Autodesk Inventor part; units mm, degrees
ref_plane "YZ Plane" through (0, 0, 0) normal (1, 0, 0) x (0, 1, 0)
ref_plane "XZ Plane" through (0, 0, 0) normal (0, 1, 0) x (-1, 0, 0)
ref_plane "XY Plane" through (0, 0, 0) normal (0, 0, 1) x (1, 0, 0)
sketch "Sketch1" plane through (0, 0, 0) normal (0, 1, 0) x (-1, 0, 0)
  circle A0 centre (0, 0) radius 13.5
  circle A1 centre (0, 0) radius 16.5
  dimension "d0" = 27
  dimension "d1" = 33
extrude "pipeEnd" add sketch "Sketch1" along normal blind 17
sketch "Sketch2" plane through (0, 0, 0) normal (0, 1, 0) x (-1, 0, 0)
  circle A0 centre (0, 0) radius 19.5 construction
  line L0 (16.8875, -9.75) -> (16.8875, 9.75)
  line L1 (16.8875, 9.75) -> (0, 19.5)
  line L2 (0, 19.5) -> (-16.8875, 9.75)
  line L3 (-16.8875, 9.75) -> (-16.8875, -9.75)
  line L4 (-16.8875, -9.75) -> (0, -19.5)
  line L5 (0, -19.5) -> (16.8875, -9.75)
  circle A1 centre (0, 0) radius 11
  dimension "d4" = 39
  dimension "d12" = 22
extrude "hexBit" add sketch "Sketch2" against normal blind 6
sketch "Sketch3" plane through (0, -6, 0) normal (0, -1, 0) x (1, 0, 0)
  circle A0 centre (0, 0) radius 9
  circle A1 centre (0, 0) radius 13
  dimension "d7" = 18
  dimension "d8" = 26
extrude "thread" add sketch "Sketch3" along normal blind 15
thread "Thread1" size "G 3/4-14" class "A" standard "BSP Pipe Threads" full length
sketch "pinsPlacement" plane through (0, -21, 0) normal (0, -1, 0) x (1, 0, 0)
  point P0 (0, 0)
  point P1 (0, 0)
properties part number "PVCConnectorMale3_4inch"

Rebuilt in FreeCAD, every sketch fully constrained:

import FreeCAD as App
import Part
import Sketcher

V = App.Vector
Q = App.Units.Quantity


def add_polygon(sketch, points):
    """Adds a closed chain of lines whose ends are joined by coincident constraints."""
    first, n = sketch.GeometryCount, len(points)
    for a, b in zip(points, points[1:] + points[:1]):
        sketch.addGeometry(Part.LineSegment(App.Vector(*a, 0), App.Vector(*b, 0)), False)
    for i in range(n):
        sketch.addConstraint(Sketcher.Constraint("Coincident", first + i, 2, first + (i + 1) % n, 1))

doc = App.newDocument("Part")
body = doc.addObject("PartDesign::Body", "Body")

# Sketch on XZ plane
sketch1 = body.newObject("Sketcher::SketchObject", "Sketch")
sketch1.AttachmentSupport = (doc.getObject("XZ_Plane"), [""])
sketch1.MapMode = "FlatFace"
sketch1.addGeometry(Part.Circle(V(0, 0, 0), V(0, 0, 1), 16), False)
sketch1.addGeometry(Part.Circle(V(0, 0, 0), V(0, 0, 1), 14), False)
sketch1.addConstraint(Sketcher.Constraint("Coincident", 0, 3, -1, 1))
sketch1.addConstraint(Sketcher.Constraint("Coincident", 1, 3, -1, 1))
sketch1.addConstraint(Sketcher.Constraint("Diameter", 0, 33.0))
sketch1.addConstraint(Sketcher.Constraint("Diameter", 1, 27.0))
pad1 = body.newObject("PartDesign::Pad", "Pad")
pad1.Profile = sketch1
pad1.Length = 17
pad1.Reversed = True

# Sketch on XZ plane
sketch2 = body.newObject("Sketcher::SketchObject", "Sketch001")
sketch2.AttachmentSupport = (doc.getObject("XZ_Plane"), [""])
sketch2.MapMode = "FlatFace"
add_polygon(sketch2, [(0, -20), (-17, -10), (-17, 10), (0, 20), (17, 10), (17, -10)])  # lines 0-5
sketch2.addGeometry(Part.Circle(V(0, 0, 0), V(0, 0, 1), 11), False)  # 6
sketch2.addConstraint(Sketcher.Constraint("Vertical", 1))
sketch2.addConstraint(Sketcher.Constraint("Vertical", 4))
sketch2.addConstraint(Sketcher.Constraint("Coincident", 6, 3, -1, 1))
sketch2.addConstraint(Sketcher.Constraint("Symmetric", 0, 2, 3, 2, -1, 1))
sketch2.addConstraint(Sketcher.Constraint("Symmetric", 2, 2, 5, 2, -1, 1))
sketch2.addConstraint(Sketcher.Constraint("PointOnObject", 2, 2, -2))
sketch2.addConstraint(Sketcher.Constraint("Parallel", 2, 5))
sketch2.addConstraint(Sketcher.Constraint("Horizontal", 1, 2, 3, 2))
sketch2.addConstraint(Sketcher.Constraint("Diameter", 6, 22.0))
sketch2.addConstraint(Sketcher.Constraint("Angle", 0, Q("150 deg")))
sketch2.addConstraint(Sketcher.Constraint("DistanceY", 1, 1, 1, 2, 19.5))
sketch2.addConstraint(Sketcher.Constraint("Distance", 0, 19.5))
pad2 = body.newObject("PartDesign::Pad", "Pad001")
pad2.Profile = sketch2
pad2.Length = 6

# Sketch on XZ plane
sketch3 = body.newObject("Sketcher::SketchObject", "Sketch002")
sketch3.AttachmentSupport = (doc.getObject("XZ_Plane"), [""])
sketch3.MapMode = "FlatFace"
sketch3.AttachmentOffset = App.Placement(V(0, 0, 6), App.Rotation())
sketch3.addGeometry(Part.Circle(V(0, 0, 0), V(0, 0, 1), 13), False)
sketch3.addGeometry(Part.Circle(V(0, 0, 0), V(0, 0, 1), 9), False)
sketch3.addConstraint(Sketcher.Constraint("Coincident", 0, 3, -1, 1))
sketch3.addConstraint(Sketcher.Constraint("Coincident", 1, 3, -1, 1))
sketch3.addConstraint(Sketcher.Constraint("Diameter", 0, 26.0))
sketch3.addConstraint(Sketcher.Constraint("Diameter", 1, 18.0))
pad3 = body.newObject("PartDesign::Pad", "Pad002")
pad3.Profile = sketch3
pad3.Length = 15

doc.recompute()
